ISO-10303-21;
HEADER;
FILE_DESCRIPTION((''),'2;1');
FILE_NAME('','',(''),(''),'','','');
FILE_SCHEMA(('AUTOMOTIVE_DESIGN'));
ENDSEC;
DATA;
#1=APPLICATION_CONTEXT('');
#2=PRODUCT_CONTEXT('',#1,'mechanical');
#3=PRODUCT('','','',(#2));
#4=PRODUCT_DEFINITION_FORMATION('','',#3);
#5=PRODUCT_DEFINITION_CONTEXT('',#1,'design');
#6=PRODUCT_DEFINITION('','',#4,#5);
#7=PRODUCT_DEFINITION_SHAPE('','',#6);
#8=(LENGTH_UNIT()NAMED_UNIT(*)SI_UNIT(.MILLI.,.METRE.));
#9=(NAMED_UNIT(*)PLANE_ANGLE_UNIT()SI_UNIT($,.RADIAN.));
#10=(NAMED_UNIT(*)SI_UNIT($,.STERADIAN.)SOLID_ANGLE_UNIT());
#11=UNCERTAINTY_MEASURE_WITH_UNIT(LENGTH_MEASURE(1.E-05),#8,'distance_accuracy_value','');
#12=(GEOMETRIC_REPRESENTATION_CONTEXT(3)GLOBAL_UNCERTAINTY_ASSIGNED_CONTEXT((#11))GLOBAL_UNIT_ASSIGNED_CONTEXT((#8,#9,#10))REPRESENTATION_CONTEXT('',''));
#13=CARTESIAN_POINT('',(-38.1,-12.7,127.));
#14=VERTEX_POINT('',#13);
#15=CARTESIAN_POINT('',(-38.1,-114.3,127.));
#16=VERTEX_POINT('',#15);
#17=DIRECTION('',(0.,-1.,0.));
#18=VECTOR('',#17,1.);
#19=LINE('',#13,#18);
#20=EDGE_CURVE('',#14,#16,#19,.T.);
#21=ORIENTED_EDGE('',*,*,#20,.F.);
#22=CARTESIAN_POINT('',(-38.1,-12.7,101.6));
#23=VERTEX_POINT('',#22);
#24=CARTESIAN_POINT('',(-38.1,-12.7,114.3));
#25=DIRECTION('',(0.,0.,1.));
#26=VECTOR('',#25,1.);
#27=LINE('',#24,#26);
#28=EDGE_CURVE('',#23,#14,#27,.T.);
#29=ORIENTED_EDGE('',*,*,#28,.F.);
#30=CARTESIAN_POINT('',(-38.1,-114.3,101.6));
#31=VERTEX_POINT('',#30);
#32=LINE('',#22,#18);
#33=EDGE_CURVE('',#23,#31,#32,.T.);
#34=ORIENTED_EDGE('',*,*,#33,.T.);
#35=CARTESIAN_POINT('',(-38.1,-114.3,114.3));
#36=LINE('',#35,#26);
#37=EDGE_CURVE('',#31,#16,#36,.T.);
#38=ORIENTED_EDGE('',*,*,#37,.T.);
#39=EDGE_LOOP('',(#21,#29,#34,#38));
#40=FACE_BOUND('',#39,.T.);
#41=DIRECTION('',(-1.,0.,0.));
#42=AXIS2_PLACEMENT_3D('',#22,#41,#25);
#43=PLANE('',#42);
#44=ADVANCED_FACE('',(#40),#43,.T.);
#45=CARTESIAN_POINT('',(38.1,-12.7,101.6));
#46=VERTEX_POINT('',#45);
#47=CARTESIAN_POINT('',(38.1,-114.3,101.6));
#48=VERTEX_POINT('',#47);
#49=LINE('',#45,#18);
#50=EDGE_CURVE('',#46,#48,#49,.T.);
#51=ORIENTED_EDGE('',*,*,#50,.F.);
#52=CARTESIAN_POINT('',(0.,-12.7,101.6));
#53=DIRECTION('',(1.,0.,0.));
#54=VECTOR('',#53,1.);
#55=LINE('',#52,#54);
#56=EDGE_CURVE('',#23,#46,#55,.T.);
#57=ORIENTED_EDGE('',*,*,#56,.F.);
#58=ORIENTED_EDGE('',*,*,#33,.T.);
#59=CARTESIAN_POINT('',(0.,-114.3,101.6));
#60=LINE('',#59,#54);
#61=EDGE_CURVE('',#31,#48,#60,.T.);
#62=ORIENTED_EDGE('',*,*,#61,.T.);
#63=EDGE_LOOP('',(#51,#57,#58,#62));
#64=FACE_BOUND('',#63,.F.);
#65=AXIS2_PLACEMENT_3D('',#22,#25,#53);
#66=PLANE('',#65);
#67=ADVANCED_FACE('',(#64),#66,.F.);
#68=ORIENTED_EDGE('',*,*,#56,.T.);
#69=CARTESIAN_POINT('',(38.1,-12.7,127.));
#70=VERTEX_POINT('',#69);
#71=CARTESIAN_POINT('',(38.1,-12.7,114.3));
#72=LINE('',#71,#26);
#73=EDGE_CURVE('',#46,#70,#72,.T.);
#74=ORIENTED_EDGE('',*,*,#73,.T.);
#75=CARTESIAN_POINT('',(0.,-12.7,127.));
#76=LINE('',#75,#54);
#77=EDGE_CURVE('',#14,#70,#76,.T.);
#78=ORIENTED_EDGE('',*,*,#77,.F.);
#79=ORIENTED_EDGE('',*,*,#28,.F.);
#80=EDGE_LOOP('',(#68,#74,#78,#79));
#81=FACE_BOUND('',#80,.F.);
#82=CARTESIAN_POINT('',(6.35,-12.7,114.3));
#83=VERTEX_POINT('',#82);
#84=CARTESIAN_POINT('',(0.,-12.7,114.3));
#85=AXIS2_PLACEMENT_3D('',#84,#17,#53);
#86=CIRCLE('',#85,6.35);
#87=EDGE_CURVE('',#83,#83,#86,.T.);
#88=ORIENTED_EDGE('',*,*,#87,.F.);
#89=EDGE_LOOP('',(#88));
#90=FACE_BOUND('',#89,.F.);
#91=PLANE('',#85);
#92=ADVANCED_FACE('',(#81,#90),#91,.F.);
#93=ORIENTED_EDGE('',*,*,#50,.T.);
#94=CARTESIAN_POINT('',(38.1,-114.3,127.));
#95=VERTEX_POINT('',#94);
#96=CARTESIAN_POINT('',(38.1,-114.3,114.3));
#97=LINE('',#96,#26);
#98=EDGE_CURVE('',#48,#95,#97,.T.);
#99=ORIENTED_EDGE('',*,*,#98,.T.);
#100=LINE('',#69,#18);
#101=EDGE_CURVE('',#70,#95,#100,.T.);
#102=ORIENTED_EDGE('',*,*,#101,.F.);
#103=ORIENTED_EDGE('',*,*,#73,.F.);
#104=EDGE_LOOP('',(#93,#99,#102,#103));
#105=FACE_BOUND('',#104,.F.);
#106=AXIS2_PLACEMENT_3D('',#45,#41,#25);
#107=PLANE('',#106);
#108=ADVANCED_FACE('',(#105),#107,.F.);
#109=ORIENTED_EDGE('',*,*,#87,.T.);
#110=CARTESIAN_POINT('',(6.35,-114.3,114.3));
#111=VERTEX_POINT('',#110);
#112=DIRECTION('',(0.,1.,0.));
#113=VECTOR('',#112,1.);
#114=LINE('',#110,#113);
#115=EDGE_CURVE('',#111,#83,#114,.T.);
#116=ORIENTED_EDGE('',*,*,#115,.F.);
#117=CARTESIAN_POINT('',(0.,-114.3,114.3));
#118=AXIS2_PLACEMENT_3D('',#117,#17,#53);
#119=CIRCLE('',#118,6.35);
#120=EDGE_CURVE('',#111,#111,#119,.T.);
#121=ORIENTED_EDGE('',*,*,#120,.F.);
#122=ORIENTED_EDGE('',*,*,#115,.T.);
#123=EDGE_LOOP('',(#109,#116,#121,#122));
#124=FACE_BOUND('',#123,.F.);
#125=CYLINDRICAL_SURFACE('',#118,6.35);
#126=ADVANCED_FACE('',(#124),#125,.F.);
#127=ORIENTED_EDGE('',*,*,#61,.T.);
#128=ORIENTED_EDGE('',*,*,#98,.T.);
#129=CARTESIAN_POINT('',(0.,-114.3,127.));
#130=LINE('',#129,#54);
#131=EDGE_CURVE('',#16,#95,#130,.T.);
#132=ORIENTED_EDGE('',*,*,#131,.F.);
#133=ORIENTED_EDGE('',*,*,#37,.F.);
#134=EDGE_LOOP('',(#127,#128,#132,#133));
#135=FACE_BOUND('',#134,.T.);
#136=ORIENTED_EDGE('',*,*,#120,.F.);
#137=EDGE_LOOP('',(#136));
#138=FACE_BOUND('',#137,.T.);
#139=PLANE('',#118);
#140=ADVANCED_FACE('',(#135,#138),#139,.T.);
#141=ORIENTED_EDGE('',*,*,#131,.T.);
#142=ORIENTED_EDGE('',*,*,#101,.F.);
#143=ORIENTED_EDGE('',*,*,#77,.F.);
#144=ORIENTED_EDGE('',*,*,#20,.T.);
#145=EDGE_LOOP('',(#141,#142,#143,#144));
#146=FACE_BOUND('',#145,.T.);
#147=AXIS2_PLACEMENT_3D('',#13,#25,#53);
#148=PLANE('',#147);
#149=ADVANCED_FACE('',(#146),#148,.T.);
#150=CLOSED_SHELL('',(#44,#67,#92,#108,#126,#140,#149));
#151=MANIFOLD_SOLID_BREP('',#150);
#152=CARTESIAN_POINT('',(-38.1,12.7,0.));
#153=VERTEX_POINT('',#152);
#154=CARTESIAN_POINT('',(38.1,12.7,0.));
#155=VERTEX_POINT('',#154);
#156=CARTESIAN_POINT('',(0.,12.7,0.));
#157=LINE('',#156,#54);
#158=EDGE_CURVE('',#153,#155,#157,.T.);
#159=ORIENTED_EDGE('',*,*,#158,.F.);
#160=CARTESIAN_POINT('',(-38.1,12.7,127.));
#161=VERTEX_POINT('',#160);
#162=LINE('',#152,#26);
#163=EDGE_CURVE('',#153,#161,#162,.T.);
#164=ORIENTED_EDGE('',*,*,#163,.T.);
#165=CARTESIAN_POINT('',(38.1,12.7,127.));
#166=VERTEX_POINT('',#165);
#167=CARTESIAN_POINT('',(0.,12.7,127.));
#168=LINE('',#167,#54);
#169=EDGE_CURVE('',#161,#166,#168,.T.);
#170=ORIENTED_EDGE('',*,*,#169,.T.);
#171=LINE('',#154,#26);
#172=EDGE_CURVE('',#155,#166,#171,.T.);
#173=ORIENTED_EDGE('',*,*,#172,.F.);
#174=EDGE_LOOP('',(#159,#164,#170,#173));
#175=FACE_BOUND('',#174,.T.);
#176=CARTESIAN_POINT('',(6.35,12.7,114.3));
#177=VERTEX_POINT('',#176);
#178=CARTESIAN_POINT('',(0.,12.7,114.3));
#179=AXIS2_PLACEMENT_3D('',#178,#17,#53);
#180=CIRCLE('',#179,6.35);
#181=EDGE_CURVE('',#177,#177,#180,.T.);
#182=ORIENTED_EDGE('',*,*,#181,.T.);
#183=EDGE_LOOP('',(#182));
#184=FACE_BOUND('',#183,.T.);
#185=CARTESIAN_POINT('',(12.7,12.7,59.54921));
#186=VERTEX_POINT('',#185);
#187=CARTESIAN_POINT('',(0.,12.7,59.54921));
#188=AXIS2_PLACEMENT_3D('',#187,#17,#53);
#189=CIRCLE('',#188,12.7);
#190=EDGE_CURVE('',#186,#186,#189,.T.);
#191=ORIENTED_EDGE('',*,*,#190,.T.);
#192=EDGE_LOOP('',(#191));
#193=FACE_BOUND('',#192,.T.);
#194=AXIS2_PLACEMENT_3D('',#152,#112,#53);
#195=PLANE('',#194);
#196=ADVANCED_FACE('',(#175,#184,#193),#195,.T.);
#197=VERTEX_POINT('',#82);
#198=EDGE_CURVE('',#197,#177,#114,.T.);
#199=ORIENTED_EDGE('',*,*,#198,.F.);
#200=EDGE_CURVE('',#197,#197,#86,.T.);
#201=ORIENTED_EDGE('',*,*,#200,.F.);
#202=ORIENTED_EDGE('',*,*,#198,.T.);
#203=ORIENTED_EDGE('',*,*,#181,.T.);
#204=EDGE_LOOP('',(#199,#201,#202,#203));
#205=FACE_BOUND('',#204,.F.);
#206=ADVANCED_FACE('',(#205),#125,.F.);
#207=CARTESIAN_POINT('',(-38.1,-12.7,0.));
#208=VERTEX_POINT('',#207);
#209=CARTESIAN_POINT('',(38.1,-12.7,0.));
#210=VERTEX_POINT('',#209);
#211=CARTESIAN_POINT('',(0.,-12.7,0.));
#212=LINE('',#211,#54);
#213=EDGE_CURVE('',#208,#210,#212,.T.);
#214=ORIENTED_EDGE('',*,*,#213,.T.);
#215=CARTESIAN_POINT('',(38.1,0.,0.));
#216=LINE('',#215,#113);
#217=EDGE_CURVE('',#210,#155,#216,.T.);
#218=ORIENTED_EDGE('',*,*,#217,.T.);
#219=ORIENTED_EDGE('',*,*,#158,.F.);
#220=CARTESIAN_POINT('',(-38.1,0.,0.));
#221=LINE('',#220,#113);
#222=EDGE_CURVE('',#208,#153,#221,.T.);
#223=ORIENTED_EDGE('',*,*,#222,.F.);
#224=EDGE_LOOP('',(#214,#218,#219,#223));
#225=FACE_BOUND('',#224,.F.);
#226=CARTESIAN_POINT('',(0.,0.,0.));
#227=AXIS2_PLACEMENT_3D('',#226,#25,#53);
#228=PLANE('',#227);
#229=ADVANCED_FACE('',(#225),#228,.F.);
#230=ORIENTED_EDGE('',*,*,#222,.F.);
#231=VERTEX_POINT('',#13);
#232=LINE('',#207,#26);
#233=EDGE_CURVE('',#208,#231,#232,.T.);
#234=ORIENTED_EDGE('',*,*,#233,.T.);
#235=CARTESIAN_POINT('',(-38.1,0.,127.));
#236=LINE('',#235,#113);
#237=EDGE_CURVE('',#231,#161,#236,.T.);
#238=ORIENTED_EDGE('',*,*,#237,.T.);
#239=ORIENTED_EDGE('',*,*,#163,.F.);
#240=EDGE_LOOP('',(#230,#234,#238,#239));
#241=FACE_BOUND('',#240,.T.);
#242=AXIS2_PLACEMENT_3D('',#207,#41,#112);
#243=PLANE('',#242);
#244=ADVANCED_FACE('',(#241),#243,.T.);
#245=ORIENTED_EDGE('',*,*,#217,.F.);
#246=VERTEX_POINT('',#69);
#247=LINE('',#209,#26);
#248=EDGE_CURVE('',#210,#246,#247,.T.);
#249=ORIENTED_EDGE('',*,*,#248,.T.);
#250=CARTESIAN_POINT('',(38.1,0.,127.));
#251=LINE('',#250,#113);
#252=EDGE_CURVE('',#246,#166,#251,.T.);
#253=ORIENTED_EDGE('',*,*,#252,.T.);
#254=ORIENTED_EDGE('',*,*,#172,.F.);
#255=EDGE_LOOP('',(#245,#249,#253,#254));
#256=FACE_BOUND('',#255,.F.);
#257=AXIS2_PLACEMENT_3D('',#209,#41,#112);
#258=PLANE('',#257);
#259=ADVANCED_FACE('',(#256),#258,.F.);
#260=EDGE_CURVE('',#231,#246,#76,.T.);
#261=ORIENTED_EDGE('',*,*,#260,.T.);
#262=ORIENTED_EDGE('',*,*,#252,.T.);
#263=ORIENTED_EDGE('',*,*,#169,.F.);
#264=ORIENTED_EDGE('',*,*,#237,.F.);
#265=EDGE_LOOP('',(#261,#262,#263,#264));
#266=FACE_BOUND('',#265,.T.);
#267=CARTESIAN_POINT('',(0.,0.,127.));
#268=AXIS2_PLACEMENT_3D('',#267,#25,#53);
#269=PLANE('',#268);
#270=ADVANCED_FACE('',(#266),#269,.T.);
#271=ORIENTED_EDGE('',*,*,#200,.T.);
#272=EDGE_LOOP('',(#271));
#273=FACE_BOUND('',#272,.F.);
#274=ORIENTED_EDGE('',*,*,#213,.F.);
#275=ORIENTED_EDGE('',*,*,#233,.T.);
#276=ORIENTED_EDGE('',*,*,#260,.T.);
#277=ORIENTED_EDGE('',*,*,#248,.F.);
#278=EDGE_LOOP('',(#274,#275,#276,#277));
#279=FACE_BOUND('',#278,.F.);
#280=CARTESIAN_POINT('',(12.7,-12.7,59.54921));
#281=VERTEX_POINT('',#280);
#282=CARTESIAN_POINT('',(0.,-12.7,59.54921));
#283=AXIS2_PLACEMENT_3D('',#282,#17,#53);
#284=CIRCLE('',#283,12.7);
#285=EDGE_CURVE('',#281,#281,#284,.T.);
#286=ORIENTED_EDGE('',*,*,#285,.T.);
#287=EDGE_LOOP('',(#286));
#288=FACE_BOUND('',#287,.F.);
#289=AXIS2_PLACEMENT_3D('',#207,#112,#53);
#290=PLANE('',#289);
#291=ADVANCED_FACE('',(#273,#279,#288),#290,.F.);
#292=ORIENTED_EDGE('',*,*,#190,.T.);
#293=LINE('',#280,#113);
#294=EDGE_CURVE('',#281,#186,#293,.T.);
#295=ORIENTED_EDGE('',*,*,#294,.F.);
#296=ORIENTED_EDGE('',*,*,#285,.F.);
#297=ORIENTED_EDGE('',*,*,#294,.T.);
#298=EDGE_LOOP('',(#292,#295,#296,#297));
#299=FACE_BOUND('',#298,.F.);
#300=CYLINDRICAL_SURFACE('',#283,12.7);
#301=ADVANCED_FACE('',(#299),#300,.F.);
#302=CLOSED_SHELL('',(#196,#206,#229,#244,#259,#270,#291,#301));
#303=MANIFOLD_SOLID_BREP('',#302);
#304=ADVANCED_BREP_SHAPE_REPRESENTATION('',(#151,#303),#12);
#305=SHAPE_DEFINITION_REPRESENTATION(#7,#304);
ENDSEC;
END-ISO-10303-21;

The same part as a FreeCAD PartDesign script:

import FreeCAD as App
import Part
import Sketcher
from FreeCAD import Vector
Q = App.Units.Quantity

doc = App.newDocument("Part")
params = doc.addObject("Spreadsheet::Sheet", "Params")
for row, (alias, value) in enumerate([
    ("sketch1_width", "3 in"),
    ("sketch1_height", "1 in"),
    ("pad1_length", "5 in"),
    ("sketch2_diameter", "1 in"),
    ("sketch3_width", "3 in"),
    ("sketch3_height", "1 in"),
    ("pad2_length", "4 in"),
    ("sketch4_diameter", "0.5 in"),
    ("pad3_length", "127.001 mm"),
    ("sketch5_diameter", "0.5 in"),
], start=1):
    params.set(f"A{row}", alias)
    params.set(f"B{row}", "=" + value)
    params.setAlias(f"B{row}", alias)

body = doc.addObject("PartDesign::Body", "Body")

# Sketch on XY plane
sketch1 = doc.addObject("Sketcher::SketchObject", "Sketch")
body.addObject(sketch1)
sketch1.AttachmentSupport = (doc.XY_Plane, [""])
sketch1.MapMode = "FlatFace"
sketch1.addGeometry([
    Part.LineSegment(Vector(-38, 13, 0), Vector(-38, -13, 0)),
    Part.LineSegment(Vector(-38, -13, 0), Vector(38, -13, 0)),
    Part.LineSegment(Vector(38, -13, 0), Vector(38, 13, 0)),
    Part.LineSegment(Vector(38, 13, 0), Vector(-38, 13, 0)),
], False)
sketch1.addConstraint([
    Sketcher.Constraint("Coincident", 0, 2, 1, 1),
    Sketcher.Constraint("Coincident", 1, 2, 2, 1),
    Sketcher.Constraint("Coincident", 2, 2, 3, 1),
    Sketcher.Constraint("Coincident", 3, 2, 0, 1),
    Sketcher.Constraint("Vertical", 0),
    Sketcher.Constraint("Horizontal", 1),
    Sketcher.Constraint("Vertical", 2),
    Sketcher.Constraint("Horizontal", 3),
    Sketcher.Constraint("Symmetric", 0, 2, 2, 2, -1, 1),
    Sketcher.Constraint("DistanceX", 1, 1, 1, 2, Q("3 in")),
    Sketcher.Constraint("DistanceY", 0, 2, 0, 1, Q("1 in")),
])
sketch1.setExpression("Constraints[9]", "Params.sketch1_width")
sketch1.setExpression("Constraints[10]", "Params.sketch1_height")
pad1 = doc.addObject("PartDesign::Pad", "Pad")
body.addObject(pad1)
pad1.Profile = sketch1
pad1.setExpression("Length", "Params.pad1_length")

# Sketch on XZ plane
sketch2 = doc.addObject("Sketcher::SketchObject", "Sketch001")
body.addObject(sketch2)
sketch2.AttachmentSupport = (doc.XZ_Plane, [""])
sketch2.MapMode = "FlatFace"
sketch2.AttachmentOffset = App.Placement(Vector(0, 0, 0.5 * 25.4), App.Rotation())
sketch2.addGeometry(Part.Circle(Vector(0, 60, 0), Vector(0, 0, 1), 13), False)
sketch2.addConstraint([
    Sketcher.Constraint("PointOnObject", 0, 3, -2),
    Sketcher.Constraint("Diameter", 0, Q("1 in")),
    Sketcher.Constraint("DistanceY", -1, 1, 0, 3, 59.54921),
])
sketch2.setExpression("Constraints[1]", "Params.sketch2_diameter")
pocket1 = doc.addObject("PartDesign::Pocket", "Pocket")
body.addObject(pocket1)
pocket1.Profile = sketch2
pocket1.Type = "ThroughAll"
body2 = doc.addObject("PartDesign::Body", "Body001")

# Sketch on XZ plane
sketch3 = doc.addObject("Sketcher::SketchObject", "Sketch002")
body2.addObject(sketch3)
sketch3.AttachmentSupport = (doc.getObject("XZ_Plane001"), [""])
sketch3.MapMode = "FlatFace"
sketch3.AttachmentOffset = App.Placement(Vector(0, 0, 0.5 * 25.4), App.Rotation())
sketch3.addGeometry([
    Part.LineSegment(Vector(-38, 127, 0), Vector(-38, 102, 0)),
    Part.LineSegment(Vector(-38, 102, 0), Vector(38, 102, 0)),
    Part.LineSegment(Vector(38, 102, 0), Vector(38, 127, 0)),
    Part.LineSegment(Vector(38, 127, 0), Vector(-38, 127, 0)),
], False)
sketch3.addConstraint([
    Sketcher.Constraint("Coincident", 0, 2, 1, 1),
    Sketcher.Constraint("Coincident", 1, 2, 2, 1),
    Sketcher.Constraint("Coincident", 2, 2, 3, 1),
    Sketcher.Constraint("Coincident", 3, 2, 0, 1),
    Sketcher.Constraint("Vertical", 0),
    Sketcher.Constraint("Horizontal", 1),
    Sketcher.Constraint("Vertical", 2),
    Sketcher.Constraint("Horizontal", 3),
    Sketcher.Constraint("DistanceX", 1, 1, 1, 2, Q("3 in")),
    Sketcher.Constraint("DistanceY", 0, 2, 0, 1, Q("1 in")),
    Sketcher.Constraint("DistanceY", -1, 1, 0, 2, Q("4 in")),
    Sketcher.Constraint("DistanceX", 0, 2, -1, 1, Q("1.5 in")),
])
sketch3.setExpression("Constraints[8]", "Params.sketch3_width")
sketch3.setExpression("Constraints[9]", "Params.sketch3_height")
pad2 = doc.addObject("PartDesign::Pad", "Pad001")
body2.addObject(pad2)
pad2.Profile = sketch3
pad2.setExpression("Length", "Params.pad2_length")
body3 = doc.addObject("PartDesign::Body", "Body002")

# Sketch on XZ plane
sketch4 = doc.addObject("Sketcher::SketchObject", "Sketch003")
body3.addObject(sketch4)
sketch4.AttachmentSupport = (doc.getObject("XZ_Plane002"), [""])
sketch4.MapMode = "FlatFace"
sketch4.AttachmentOffset = App.Placement(Vector(0, 0, 4.5 * 25.4), App.Rotation())
sketch4.addGeometry(Part.Circle(Vector(0, 114, 0), Vector(0, 0, 1), 6), False)
sketch4.addConstraint([
    Sketcher.Constraint("PointOnObject", 0, 3, -2),
    Sketcher.Constraint("Diameter", 0, Q("0.5 in")),
    Sketcher.Constraint("DistanceY", -1, 1, 0, 3, Q("4.5 in")),
])
sketch4.setExpression("Constraints[1]", "Params.sketch4_diameter")
pad3 = doc.addObject("PartDesign::Pad", "Pad002")
body3.addObject(pad3)
pad3.Profile = sketch4
pad3.setExpression("Length", "Params.pad3_length")
pad3.Reversed = True
doc.recompute()

body4 = doc.addObject("PartDesign::Body", "Body003")
body4.BaseFeature = body3
boolean = doc.addObject("PartDesign::Boolean", "Boolean")
body.addObject(boolean)
boolean.Type = "Cut"
boolean.addObjects([body4])
doc.recompute()

# Sketch on XZ plane
sketch5 = doc.addObject("Sketcher::SketchObject", "Sketch004")
body.addObject(sketch5)
sketch5.AttachmentSupport = (doc.XZ_Plane, [""])
sketch5.MapMode = "FlatFace"
sketch5.AttachmentOffset = App.Placement(Vector(0, 0, 0.5 * 25.4), App.Rotation())
sketch5.addGeometry(Part.Circle(Vector(0, 114, 0), Vector(0, 0, 1), 6), False)
sketch5.addConstraint([
    Sketcher.Constraint("PointOnObject", 0, 3, -2),
    Sketcher.Constraint("Diameter", 0, Q("0.5 in")),
    Sketcher.Constraint("DistanceY", -1, 1, 0, 3, Q("4.5 in")),
])
sketch5.setExpression("Constraints[1]", "Params.sketch5_diameter")
pocket2 = doc.addObject("PartDesign::Pocket", "Pocket001")
body.addObject(pocket2)
pocket2.Profile = sketch5
pocket2.Type = "ThroughAll"
doc.recompute()

boolean2 = doc.addObject("PartDesign::Boolean", "Boolean001")
body2.addObject(boolean2)
boolean2.Type = "Cut"
boolean2.addObjects([body3])

doc.recompute()
